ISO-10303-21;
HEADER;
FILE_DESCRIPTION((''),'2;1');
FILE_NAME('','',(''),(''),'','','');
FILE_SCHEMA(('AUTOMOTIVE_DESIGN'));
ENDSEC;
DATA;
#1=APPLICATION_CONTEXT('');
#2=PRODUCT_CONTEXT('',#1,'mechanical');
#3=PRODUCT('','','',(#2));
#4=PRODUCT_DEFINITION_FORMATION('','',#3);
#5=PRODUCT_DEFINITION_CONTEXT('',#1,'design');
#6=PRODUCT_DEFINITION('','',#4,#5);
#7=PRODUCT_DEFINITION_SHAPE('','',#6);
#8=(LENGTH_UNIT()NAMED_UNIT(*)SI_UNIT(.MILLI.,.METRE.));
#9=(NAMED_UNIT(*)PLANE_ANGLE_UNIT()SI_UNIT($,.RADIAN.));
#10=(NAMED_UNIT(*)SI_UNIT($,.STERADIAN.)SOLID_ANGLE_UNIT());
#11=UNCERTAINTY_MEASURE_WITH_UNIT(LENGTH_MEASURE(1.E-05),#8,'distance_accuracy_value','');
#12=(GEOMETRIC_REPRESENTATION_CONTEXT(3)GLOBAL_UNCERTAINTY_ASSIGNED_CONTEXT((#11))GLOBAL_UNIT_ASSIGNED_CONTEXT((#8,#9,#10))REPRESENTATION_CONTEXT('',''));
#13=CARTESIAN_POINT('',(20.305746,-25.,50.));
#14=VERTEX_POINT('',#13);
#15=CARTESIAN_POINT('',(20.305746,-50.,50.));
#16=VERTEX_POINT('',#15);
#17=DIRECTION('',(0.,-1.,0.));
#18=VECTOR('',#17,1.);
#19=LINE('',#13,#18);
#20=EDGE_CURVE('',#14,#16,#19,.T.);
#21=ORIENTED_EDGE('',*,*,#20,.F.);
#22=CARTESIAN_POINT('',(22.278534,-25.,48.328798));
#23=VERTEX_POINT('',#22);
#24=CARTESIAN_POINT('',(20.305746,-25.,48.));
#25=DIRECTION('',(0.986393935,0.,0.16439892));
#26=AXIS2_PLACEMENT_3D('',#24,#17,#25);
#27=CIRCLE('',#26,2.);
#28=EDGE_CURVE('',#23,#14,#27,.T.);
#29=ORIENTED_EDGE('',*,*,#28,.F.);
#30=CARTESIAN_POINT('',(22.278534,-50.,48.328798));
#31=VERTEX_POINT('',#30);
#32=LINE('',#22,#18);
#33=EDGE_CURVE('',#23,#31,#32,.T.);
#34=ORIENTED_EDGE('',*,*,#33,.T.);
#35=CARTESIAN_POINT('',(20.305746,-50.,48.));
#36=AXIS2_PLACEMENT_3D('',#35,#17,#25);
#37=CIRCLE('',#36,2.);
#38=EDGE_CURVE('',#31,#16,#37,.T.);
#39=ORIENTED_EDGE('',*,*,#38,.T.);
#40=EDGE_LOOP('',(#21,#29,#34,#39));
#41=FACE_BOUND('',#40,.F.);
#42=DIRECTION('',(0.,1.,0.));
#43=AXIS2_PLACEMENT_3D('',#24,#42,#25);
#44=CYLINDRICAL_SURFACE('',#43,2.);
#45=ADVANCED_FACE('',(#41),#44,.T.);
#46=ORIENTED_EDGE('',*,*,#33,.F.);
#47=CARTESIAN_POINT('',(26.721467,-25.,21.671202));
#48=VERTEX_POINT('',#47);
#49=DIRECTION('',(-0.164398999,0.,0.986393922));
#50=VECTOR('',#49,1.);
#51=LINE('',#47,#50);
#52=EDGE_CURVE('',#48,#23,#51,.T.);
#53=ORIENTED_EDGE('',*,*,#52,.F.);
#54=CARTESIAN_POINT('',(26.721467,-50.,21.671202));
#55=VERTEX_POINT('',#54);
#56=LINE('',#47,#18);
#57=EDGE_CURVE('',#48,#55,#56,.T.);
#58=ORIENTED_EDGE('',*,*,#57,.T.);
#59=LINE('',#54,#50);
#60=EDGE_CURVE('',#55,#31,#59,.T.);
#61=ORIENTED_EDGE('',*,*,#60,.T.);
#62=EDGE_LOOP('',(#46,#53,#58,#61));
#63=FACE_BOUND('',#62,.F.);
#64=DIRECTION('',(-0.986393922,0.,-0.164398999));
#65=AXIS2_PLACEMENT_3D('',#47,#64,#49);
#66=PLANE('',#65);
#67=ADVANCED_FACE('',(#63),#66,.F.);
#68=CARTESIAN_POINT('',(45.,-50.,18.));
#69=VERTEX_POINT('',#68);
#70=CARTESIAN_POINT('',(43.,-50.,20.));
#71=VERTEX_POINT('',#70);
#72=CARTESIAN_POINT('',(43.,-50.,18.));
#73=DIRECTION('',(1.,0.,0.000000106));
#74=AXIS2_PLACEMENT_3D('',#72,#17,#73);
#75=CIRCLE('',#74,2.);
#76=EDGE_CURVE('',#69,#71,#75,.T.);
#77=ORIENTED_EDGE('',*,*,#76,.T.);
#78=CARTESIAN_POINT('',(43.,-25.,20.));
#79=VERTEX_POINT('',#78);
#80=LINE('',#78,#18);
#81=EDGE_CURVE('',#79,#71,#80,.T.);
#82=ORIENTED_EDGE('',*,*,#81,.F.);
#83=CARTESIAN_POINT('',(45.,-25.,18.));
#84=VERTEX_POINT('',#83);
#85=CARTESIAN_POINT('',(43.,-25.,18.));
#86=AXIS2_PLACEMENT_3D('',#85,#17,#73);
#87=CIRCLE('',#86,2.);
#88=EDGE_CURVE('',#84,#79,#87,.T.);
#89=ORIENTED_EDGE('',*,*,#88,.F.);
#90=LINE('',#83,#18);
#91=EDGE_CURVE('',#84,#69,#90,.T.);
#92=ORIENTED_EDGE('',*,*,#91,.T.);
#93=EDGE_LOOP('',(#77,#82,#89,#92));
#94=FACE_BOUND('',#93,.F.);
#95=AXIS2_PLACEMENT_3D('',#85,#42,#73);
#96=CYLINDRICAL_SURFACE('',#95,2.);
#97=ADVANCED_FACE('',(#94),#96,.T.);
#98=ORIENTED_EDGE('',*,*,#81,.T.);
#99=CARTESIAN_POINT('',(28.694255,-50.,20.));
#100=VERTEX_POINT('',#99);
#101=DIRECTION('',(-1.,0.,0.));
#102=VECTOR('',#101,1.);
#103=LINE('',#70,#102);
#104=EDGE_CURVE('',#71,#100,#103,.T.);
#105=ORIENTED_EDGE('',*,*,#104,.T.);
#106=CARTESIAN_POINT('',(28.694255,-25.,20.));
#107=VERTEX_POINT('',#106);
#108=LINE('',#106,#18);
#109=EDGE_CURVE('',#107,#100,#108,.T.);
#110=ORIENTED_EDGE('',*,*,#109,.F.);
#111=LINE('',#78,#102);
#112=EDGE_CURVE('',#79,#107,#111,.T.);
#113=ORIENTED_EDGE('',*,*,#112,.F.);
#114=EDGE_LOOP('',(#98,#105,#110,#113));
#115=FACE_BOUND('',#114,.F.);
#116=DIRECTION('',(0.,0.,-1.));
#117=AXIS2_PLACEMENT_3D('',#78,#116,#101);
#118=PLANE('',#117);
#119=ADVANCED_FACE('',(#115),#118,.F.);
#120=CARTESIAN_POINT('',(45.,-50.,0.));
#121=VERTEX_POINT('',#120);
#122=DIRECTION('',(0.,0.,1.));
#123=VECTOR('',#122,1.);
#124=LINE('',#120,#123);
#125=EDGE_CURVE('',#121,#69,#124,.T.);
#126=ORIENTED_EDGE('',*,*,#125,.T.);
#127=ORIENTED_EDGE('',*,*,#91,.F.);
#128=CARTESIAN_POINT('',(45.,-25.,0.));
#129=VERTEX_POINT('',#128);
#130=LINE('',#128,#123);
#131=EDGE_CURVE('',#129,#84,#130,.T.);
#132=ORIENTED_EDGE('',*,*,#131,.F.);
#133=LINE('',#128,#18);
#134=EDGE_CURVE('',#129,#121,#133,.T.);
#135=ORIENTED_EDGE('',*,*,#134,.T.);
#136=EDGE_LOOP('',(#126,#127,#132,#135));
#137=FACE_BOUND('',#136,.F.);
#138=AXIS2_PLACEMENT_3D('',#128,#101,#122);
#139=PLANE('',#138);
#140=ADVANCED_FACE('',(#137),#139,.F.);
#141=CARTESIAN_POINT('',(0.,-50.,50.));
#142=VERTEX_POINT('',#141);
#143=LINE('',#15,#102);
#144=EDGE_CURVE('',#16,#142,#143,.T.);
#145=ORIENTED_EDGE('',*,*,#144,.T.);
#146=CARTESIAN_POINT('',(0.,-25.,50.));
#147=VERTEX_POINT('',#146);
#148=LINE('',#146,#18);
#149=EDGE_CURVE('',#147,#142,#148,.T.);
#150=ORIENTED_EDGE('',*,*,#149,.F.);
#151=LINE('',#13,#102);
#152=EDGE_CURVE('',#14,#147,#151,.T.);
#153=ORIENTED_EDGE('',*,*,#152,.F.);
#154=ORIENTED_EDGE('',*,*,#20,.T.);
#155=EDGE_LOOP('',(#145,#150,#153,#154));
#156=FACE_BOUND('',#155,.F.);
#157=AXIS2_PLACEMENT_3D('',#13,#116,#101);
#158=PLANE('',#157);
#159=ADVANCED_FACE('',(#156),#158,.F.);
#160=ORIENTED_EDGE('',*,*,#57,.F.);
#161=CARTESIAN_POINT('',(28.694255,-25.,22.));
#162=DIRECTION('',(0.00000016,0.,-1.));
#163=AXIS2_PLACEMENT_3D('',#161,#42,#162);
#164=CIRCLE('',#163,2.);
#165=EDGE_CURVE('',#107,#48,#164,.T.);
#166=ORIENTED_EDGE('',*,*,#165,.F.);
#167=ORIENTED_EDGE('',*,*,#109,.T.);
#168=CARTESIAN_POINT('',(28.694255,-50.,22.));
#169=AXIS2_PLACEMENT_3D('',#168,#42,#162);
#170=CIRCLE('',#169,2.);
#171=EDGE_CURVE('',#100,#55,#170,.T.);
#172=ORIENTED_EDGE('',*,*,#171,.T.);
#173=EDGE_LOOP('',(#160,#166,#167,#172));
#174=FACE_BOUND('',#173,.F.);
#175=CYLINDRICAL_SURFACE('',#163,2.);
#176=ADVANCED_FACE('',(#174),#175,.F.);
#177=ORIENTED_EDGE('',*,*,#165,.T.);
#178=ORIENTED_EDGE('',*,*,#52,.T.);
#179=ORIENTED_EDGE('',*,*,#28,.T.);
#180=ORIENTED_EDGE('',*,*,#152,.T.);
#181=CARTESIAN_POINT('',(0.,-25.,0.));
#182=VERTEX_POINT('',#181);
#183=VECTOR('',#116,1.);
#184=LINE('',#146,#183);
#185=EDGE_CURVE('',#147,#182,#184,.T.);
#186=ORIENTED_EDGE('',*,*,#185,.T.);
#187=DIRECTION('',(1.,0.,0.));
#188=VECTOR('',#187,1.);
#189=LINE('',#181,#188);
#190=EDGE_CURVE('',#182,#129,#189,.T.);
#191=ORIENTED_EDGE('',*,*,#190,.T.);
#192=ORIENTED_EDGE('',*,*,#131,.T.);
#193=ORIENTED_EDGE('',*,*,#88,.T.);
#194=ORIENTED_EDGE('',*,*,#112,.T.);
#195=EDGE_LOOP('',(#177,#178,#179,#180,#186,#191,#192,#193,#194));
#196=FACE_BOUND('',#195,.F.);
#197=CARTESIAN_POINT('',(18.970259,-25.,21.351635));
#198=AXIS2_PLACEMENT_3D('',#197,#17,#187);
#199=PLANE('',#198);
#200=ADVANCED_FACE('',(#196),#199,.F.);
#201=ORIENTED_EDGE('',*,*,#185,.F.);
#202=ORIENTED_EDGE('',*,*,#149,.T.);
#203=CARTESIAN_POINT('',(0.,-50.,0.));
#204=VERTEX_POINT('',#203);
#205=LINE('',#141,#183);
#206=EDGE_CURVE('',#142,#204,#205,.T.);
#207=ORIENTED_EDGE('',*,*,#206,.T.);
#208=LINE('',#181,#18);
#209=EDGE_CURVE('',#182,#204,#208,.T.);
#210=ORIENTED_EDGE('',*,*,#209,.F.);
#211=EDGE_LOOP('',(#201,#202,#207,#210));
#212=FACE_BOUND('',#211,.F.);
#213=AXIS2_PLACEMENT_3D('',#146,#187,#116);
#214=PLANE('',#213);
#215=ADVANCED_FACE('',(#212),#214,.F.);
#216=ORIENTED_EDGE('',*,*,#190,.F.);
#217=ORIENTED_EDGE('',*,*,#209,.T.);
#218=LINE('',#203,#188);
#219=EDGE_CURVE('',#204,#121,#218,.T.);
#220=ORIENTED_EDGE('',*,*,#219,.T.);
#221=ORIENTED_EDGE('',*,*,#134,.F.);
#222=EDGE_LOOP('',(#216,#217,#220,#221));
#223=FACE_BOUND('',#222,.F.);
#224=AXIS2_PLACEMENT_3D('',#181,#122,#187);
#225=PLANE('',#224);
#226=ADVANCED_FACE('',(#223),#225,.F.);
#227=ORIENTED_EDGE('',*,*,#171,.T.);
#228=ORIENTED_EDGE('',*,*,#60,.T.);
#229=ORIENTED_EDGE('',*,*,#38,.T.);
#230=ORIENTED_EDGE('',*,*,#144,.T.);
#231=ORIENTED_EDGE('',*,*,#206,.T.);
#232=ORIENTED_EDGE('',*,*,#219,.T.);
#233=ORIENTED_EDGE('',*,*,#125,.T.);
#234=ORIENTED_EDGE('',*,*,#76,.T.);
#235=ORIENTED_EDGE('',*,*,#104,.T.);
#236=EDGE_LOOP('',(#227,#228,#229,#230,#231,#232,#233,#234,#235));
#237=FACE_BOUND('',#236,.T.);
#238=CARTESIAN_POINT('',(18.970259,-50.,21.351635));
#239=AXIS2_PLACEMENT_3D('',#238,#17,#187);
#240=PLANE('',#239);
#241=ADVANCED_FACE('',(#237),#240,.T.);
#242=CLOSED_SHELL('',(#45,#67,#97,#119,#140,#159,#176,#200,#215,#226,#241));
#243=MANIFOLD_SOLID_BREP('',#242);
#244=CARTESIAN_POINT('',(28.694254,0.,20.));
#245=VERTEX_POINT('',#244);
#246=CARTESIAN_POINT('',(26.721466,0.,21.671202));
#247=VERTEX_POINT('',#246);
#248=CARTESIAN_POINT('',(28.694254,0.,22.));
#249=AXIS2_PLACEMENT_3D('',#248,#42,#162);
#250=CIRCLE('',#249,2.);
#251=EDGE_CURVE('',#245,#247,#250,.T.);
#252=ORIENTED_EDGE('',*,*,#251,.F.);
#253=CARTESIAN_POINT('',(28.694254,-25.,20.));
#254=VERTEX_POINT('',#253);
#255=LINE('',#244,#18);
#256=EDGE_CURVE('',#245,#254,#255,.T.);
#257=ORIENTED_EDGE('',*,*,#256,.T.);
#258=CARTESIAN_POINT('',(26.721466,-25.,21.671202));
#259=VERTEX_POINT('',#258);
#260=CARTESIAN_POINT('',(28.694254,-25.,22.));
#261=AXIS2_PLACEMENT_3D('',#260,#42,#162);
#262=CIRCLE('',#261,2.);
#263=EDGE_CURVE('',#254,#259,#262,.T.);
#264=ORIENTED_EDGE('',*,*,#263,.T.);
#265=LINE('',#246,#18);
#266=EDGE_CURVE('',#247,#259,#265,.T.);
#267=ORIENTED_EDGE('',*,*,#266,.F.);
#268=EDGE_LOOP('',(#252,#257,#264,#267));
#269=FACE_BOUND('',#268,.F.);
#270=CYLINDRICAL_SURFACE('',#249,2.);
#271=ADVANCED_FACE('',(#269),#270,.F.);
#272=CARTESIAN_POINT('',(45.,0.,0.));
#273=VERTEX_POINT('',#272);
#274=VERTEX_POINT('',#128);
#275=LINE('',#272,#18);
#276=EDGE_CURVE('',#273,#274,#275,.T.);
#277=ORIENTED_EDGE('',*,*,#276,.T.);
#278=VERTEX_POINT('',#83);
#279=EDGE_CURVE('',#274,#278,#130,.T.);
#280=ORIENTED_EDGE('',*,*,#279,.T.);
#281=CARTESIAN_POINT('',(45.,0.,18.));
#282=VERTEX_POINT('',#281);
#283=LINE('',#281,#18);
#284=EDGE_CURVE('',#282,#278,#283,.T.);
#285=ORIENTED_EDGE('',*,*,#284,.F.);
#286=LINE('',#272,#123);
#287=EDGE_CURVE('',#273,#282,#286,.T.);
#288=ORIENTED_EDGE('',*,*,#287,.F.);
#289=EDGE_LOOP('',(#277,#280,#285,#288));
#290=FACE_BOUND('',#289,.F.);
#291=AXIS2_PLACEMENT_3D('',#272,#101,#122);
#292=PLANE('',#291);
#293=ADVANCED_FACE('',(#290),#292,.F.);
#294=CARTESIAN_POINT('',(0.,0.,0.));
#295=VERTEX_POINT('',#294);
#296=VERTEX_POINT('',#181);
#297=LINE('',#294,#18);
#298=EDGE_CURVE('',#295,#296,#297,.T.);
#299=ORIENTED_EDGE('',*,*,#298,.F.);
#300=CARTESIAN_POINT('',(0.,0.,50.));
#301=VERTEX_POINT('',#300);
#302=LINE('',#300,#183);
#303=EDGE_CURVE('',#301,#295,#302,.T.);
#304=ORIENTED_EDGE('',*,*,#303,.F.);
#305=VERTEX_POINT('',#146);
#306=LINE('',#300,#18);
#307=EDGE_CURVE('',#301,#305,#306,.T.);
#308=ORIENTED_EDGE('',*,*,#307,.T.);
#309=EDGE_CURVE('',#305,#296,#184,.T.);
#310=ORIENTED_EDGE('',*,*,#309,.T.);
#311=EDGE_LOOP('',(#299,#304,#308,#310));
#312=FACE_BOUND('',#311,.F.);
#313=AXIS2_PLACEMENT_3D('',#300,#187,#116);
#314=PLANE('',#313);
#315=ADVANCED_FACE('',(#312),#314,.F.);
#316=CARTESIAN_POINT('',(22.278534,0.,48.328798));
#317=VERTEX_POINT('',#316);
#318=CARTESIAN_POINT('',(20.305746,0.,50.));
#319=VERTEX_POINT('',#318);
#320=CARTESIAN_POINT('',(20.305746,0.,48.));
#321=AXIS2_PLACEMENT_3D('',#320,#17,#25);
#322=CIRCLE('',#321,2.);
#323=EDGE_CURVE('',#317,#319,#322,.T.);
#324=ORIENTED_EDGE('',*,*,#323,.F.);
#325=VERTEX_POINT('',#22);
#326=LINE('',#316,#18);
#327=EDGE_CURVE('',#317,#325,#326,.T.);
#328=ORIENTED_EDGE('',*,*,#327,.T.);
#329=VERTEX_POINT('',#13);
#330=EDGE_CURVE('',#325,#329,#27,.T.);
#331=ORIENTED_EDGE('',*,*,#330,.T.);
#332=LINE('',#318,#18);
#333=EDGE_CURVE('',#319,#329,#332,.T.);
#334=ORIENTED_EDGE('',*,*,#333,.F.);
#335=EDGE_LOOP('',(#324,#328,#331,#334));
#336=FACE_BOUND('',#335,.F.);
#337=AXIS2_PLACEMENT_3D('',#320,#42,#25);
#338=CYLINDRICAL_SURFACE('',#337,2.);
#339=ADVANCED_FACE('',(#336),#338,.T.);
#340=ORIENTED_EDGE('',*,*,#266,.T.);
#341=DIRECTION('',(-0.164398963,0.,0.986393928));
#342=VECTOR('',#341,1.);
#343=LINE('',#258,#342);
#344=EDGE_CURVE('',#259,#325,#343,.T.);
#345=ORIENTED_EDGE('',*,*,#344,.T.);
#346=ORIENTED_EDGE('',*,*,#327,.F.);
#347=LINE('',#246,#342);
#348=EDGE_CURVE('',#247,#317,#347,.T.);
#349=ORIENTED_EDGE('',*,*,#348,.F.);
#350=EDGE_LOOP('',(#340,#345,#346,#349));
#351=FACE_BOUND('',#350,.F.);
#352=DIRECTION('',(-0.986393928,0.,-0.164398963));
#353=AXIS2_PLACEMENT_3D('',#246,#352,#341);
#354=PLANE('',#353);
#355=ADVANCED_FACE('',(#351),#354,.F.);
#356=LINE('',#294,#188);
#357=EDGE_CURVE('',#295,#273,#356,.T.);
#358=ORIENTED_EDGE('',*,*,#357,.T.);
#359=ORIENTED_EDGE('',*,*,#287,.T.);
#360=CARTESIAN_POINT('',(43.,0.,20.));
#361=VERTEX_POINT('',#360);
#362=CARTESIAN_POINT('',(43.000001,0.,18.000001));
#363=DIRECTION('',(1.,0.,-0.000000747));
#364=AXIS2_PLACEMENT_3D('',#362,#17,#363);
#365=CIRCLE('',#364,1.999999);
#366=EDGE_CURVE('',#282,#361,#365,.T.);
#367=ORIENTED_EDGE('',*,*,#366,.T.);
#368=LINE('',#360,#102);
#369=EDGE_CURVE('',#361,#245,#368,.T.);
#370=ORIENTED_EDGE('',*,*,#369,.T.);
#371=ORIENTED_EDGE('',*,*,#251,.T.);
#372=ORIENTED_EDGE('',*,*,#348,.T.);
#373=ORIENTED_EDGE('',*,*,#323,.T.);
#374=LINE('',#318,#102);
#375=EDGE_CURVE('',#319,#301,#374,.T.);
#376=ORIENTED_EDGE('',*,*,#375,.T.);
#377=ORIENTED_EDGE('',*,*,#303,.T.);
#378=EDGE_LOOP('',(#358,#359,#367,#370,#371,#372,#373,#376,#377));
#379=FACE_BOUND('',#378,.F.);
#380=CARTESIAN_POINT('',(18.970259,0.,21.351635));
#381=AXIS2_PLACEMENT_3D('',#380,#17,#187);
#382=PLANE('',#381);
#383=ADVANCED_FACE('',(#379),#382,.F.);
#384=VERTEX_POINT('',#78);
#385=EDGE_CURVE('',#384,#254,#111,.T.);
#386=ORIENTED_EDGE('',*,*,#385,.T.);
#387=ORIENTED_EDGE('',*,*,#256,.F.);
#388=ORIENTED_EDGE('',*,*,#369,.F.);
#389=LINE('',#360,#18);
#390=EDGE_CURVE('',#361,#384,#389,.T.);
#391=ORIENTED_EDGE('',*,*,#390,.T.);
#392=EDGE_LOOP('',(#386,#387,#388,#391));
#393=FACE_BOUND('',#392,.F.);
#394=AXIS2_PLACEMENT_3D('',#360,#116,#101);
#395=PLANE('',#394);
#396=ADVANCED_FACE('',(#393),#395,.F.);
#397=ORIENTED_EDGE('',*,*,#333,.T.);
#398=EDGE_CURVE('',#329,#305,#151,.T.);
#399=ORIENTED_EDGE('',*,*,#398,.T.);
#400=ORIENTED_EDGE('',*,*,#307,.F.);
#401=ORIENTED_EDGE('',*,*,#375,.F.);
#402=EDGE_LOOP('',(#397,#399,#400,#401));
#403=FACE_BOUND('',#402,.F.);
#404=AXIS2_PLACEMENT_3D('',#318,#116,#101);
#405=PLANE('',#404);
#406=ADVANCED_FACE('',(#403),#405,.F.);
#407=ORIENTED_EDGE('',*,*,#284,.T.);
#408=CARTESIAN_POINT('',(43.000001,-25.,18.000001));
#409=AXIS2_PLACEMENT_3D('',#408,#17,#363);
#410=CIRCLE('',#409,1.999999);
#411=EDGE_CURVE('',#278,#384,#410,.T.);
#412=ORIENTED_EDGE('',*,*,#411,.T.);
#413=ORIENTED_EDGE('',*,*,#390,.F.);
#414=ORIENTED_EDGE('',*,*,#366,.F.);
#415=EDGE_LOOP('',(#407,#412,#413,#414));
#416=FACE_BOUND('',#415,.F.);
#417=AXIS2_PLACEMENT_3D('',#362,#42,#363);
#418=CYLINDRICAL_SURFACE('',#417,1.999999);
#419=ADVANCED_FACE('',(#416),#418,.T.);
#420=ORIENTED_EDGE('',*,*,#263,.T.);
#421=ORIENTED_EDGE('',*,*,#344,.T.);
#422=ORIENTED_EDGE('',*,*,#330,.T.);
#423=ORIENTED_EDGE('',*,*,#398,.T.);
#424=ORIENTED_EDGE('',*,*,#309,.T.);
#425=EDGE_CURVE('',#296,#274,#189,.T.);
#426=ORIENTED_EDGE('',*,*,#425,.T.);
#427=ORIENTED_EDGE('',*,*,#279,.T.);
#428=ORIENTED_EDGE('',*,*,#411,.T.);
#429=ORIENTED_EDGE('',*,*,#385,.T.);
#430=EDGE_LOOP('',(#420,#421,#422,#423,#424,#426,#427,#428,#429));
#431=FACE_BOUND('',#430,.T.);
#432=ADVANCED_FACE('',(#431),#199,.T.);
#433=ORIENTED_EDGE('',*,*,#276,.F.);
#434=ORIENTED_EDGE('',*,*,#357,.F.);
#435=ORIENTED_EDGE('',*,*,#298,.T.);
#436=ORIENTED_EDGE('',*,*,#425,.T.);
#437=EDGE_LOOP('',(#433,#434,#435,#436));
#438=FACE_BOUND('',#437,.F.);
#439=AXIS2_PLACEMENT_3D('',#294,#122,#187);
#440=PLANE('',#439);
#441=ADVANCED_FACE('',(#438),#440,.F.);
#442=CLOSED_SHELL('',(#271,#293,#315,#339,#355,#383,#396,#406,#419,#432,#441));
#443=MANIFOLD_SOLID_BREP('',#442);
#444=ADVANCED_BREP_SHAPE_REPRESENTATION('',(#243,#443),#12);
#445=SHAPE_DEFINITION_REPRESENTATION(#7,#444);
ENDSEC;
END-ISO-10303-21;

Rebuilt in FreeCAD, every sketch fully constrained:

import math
import FreeCAD as App
import Part
import Sketcher

V = App.Vector
Q = App.Units.Quantity

doc = App.newDocument("Part")
body = doc.addObject("PartDesign::Body", "Body")

sketch1 = body.newObject("Sketcher::SketchObject", "Sketch")
sketch1.AttachmentSupport = (doc.getObject("XZ_Plane"), [""])
sketch1.MapMode = "FlatFace"
sketch1.addGeometry([
    Part.LineSegment(V(0, 50, 0), V(0, 0, 0)),
    Part.LineSegment(V(0, 0, 0), V(45, 0, 0)),
    Part.LineSegment(V(45, 0, 0), V(45, 18, 0)),
    Part.ArcOfCircle(Part.Circle(V(43, 18, 0), V(0, 0, 1), 2), math.radians(0), math.radians(90)),
    Part.LineSegment(V(43, 20, 0), V(28.7, 20, 0)),
    Part.ArcOfCircle(Part.Circle(V(28.7, 22, 0), V(0, 0, 1), 2), math.radians(-171), math.radians(-90)),
    Part.LineSegment(V(26.7, 21.7, 0), V(22.3, 48.3, 0)),
    Part.ArcOfCircle(Part.Circle(V(20.3, 48, 0), V(0, 0, 1), 2), math.radians(9), math.radians(90)),
    Part.LineSegment(V(20.3, 50, 0), V(0, 50, 0)),
], False)
sketch1.addConstraint([
    Sketcher.Constraint("Coincident", 0, 2, 1, 1),
    Sketcher.Constraint("Coincident", 1, 2, 2, 1),
    Sketcher.Constraint("Tangent", 2, 2, 3, 1),
    Sketcher.Constraint("Tangent", 3, 2, 4, 1),
    Sketcher.Constraint("Tangent", 4, 2, 5, 2),
    Sketcher.Constraint("Tangent", 5, 1, 6, 1),
    Sketcher.Constraint("Tangent", 6, 2, 7, 1),
    Sketcher.Constraint("Tangent", 7, 2, 8, 1),
    Sketcher.Constraint("Coincident", 8, 2, 0, 1),
    Sketcher.Constraint("Vertical", 0),
    Sketcher.Constraint("Horizontal", 1),
    Sketcher.Constraint("Vertical", 2),
    Sketcher.Constraint("Horizontal", 4),
    Sketcher.Constraint("Horizontal", 8),
    Sketcher.Constraint("Coincident", 0, 2, -1, 1),
    Sketcher.Constraint("Equal", 3, 5),
    Sketcher.Constraint("Equal", 5, 7),
    Sketcher.Constraint("Radius", 3, Q("1.999999 mm")),
    Sketcher.Constraint("DistanceX", 1, 1, 1, 2, Q("45 mm")),
    Sketcher.Constraint("DistanceY", 0, 2, 0, 1, Q("50 mm")),
    Sketcher.Constraint("DistanceY", 2, 1, 2, 2, Q("18 mm")),
    Sketcher.Constraint("DistanceY", 3, 3, 5, 1, Q("3.671201 mm")),
    Sketcher.Constraint("DistanceX", 4, 2, 4, 1, Q("14.305746 mm")),
])
pad1 = body.newObject("PartDesign::Pad", "Pad")
pad1.Profile = sketch1
pad1.Length = 25
body2 = doc.addObject("PartDesign::Body", "Body001")

sketch2 = body2.newObject("Sketcher::SketchObject", "Sketch001")
sketch2.AttachmentSupport = (doc.getObject("XZ_Plane001"), [""])
sketch2.MapMode = "FlatFace"
sketch2.AttachmentOffset = App.Placement(V(0, 0, 25), App.Rotation())
sketch2.addGeometry([
    Part.LineSegment(V(0, 50, 0), V(0, 0, 0)),
    Part.LineSegment(V(0, 0, 0), V(45, 0, 0)),
    Part.LineSegment(V(45, 0, 0), V(45, 18, 0)),
    Part.ArcOfCircle(Part.Circle(V(43, 18, 0), V(0, 0, 1), 2), math.radians(0), math.radians(90)),
    Part.LineSegment(V(43, 20, 0), V(28.7, 20, 0)),
    Part.ArcOfCircle(Part.Circle(V(28.7, 22, 0), V(0, 0, 1), 2), math.radians(-171), math.radians(-90)),
    Part.LineSegment(V(26.7, 21.7, 0), V(22.3, 48.3, 0)),
    Part.ArcOfCircle(Part.Circle(V(20.3, 48, 0), V(0, 0, 1), 2), math.radians(9), math.radians(90)),
    Part.LineSegment(V(20.3, 50, 0), V(0, 50, 0)),
], False)
sketch2.addConstraint([
    Sketcher.Constraint("Coincident", 0, 2, 1, 1),
    Sketcher.Constraint("Coincident", 1, 2, 2, 1),
    Sketcher.Constraint("Tangent", 2, 2, 3, 1),
    Sketcher.Constraint("Tangent", 3, 2, 4, 1),
    Sketcher.Constraint("Tangent", 4, 2, 5, 2),
    Sketcher.Constraint("Tangent", 5, 1, 6, 1),
    Sketcher.Constraint("Tangent", 6, 2, 7, 1),
    Sketcher.Constraint("Tangent", 7, 2, 8, 1),
    Sketcher.Constraint("Coincident", 8, 2, 0, 1),
    Sketcher.Constraint("Vertical", 0),
    Sketcher.Constraint("Horizontal", 1),
    Sketcher.Constraint("Vertical", 2),
    Sketcher.Constraint("Horizontal", 4),
    Sketcher.Constraint("Horizontal", 8),
    Sketcher.Constraint("Coincident", 0, 2, -1, 1),
    Sketcher.Constraint("Equal", 3, 5),
    Sketcher.Constraint("Equal", 5, 7),
    Sketcher.Constraint("Radius", 3, Q("2 mm")),
    Sketcher.Constraint("DistanceX", 1, 1, 1, 2, Q("45 mm")),
    Sketcher.Constraint("DistanceY", 0, 2, 0, 1, Q("50 mm")),
    Sketcher.Constraint("DistanceY", 2, 1, 2, 2, Q("18 mm")),
    Sketcher.Constraint("DistanceY", 5, 3, 6, 2, Q("26.328798 mm")),
    Sketcher.Constraint("DistanceX", 4, 2, 4, 1, Q("14.305745 mm")),
])
pad2 = body2.newObject("PartDesign::Pad", "Pad001")
pad2.Profile = sketch2
pad2.Length = 25

doc.recompute()
